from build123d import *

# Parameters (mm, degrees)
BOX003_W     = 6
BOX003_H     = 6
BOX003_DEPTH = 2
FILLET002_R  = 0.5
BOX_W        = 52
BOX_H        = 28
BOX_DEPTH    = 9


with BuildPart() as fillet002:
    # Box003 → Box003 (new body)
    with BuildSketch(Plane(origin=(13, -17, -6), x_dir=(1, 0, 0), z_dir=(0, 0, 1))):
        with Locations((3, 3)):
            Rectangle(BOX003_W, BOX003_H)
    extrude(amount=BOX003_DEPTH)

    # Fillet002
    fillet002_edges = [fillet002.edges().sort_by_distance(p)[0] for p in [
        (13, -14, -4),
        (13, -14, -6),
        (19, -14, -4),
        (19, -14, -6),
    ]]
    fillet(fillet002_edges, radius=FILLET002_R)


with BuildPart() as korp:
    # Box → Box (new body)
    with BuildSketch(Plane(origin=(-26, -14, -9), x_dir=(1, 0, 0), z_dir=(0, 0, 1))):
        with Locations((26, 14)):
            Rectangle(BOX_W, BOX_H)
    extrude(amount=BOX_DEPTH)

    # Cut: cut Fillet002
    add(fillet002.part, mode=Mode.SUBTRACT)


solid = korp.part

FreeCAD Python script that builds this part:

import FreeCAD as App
import Part
import Sketcher
from FreeCAD import Vector
Q = App.Units.Quantity


def edges_at(feature, points):
    """Names of the edges that pass closest to the given points."""
    edges = feature.Shape.Edges
    near = lambda p: min(range(len(edges)), key=lambda i: edges[i].distToShape(Part.Vertex(*p))[0])
    return sorted({f"Edge{near(p) + 1}" for p in points})


def add_polygon(sketch, points):
    """Adds a closed chain of lines whose ends are joined by coincident constraints."""
    first, n = sketch.GeometryCount, len(points)
    for a, b in zip(points, points[1:] + points[:1]):
        sketch.addGeometry(Part.LineSegment(App.Vector(*a, 0), App.Vector(*b, 0)), False)
    for i in range(n):
        sketch.addConstraint(Sketcher.Constraint("Coincident", first + i, 2, first + (i + 1) % n, 1))

doc = App.newDocument("Part")
body = doc.addObject("PartDesign::Body", "Body")

# Sketch on XY plane
sketch1 = doc.addObject("Sketcher::SketchObject", "Sketch")
body.addObject(sketch1)
sketch1.AttachmentSupport = (doc.XY_Plane, [""])
sketch1.MapMode = "FlatFace"
sketch1.AttachmentOffset = App.Placement(Vector(0, 0, -6), App.Rotation())
add_polygon(sketch1, [(13, -11), (13, -17), (19, -17), (19, -11)])  # lines 0-3
sketch1.addConstraint(Sketcher.Constraint("Vertical", 0))
sketch1.addConstraint(Sketcher.Constraint("Horizontal", 1))
sketch1.addConstraint(Sketcher.Constraint("Vertical", 2))
sketch1.addConstraint(Sketcher.Constraint("Horizontal", 3))
sketch1.addConstraint(Sketcher.Constraint("Equal", 3, 0))
sketch1.addConstraint(Sketcher.Constraint("DistanceX", 1, 1, 1, 2, Q("6 mm")))
sketch1.addConstraint(Sketcher.Constraint("DistanceX", -1, 1, 0, 2, Q("13 mm")))
sketch1.addConstraint(Sketcher.Constraint("DistanceY", 0, 2, -1, 1, Q("17 mm")))
pad1 = doc.addObject("PartDesign::Pad", "Pad")
body.addObject(pad1)
pad1.Profile = sketch1
pad1.Length = 2
doc.recompute()

fillet = doc.addObject("PartDesign::Fillet", "Fillet")
body.addObject(fillet)
fillet.Base = (pad1, edges_at(pad1, [
    (13, -14, -4),
    (13, -14, -6),
    (19, -14, -4),
    (19, -14, -6),
]))
fillet.Radius = 0.5
body2 = doc.addObject("PartDesign::Body", "Body001")

# Sketch on XY plane
sketch2 = doc.addObject("Sketcher::SketchObject", "Sketch001")
body2.addObject(sketch2)
sketch2.AttachmentSupport = (doc.getObject("XY_Plane001"), [""])
sketch2.MapMode = "FlatFace"
sketch2.AttachmentOffset = App.Placement(Vector(0, 0, -9), App.Rotation())
add_polygon(sketch2, [(-26, 14), (-26, -14), (26, -14), (26, 14)])  # lines 0-3
sketch2.addConstraint(Sketcher.Constraint("Vertical", 0))
sketch2.addConstraint(Sketcher.Constraint("Horizontal", 1))
sketch2.addConstraint(Sketcher.Constraint("Vertical", 2))
sketch2.addConstraint(Sketcher.Constraint("Horizontal", 3))
sketch2.addConstraint(Sketcher.Constraint("Symmetric", 0, 2, 2, 2, -1, 1))
sketch2.addConstraint(Sketcher.Constraint("DistanceX", 1, 1, 1, 2, Q("52 mm")))
sketch2.addConstraint(Sketcher.Constraint("DistanceY", 0, 2, 0, 1, Q("28 mm")))
pad2 = doc.addObject("PartDesign::Pad", "Pad001")
body2.addObject(pad2)
pad2.Profile = sketch2
pad2.Length = 9
doc.recompute()

boolean = doc.addObject("PartDesign::Boolean", "Boolean")
body2.addObject(boolean)
boolean.Type = "Cut"
boolean.addObjects([body])

doc.recompute()
